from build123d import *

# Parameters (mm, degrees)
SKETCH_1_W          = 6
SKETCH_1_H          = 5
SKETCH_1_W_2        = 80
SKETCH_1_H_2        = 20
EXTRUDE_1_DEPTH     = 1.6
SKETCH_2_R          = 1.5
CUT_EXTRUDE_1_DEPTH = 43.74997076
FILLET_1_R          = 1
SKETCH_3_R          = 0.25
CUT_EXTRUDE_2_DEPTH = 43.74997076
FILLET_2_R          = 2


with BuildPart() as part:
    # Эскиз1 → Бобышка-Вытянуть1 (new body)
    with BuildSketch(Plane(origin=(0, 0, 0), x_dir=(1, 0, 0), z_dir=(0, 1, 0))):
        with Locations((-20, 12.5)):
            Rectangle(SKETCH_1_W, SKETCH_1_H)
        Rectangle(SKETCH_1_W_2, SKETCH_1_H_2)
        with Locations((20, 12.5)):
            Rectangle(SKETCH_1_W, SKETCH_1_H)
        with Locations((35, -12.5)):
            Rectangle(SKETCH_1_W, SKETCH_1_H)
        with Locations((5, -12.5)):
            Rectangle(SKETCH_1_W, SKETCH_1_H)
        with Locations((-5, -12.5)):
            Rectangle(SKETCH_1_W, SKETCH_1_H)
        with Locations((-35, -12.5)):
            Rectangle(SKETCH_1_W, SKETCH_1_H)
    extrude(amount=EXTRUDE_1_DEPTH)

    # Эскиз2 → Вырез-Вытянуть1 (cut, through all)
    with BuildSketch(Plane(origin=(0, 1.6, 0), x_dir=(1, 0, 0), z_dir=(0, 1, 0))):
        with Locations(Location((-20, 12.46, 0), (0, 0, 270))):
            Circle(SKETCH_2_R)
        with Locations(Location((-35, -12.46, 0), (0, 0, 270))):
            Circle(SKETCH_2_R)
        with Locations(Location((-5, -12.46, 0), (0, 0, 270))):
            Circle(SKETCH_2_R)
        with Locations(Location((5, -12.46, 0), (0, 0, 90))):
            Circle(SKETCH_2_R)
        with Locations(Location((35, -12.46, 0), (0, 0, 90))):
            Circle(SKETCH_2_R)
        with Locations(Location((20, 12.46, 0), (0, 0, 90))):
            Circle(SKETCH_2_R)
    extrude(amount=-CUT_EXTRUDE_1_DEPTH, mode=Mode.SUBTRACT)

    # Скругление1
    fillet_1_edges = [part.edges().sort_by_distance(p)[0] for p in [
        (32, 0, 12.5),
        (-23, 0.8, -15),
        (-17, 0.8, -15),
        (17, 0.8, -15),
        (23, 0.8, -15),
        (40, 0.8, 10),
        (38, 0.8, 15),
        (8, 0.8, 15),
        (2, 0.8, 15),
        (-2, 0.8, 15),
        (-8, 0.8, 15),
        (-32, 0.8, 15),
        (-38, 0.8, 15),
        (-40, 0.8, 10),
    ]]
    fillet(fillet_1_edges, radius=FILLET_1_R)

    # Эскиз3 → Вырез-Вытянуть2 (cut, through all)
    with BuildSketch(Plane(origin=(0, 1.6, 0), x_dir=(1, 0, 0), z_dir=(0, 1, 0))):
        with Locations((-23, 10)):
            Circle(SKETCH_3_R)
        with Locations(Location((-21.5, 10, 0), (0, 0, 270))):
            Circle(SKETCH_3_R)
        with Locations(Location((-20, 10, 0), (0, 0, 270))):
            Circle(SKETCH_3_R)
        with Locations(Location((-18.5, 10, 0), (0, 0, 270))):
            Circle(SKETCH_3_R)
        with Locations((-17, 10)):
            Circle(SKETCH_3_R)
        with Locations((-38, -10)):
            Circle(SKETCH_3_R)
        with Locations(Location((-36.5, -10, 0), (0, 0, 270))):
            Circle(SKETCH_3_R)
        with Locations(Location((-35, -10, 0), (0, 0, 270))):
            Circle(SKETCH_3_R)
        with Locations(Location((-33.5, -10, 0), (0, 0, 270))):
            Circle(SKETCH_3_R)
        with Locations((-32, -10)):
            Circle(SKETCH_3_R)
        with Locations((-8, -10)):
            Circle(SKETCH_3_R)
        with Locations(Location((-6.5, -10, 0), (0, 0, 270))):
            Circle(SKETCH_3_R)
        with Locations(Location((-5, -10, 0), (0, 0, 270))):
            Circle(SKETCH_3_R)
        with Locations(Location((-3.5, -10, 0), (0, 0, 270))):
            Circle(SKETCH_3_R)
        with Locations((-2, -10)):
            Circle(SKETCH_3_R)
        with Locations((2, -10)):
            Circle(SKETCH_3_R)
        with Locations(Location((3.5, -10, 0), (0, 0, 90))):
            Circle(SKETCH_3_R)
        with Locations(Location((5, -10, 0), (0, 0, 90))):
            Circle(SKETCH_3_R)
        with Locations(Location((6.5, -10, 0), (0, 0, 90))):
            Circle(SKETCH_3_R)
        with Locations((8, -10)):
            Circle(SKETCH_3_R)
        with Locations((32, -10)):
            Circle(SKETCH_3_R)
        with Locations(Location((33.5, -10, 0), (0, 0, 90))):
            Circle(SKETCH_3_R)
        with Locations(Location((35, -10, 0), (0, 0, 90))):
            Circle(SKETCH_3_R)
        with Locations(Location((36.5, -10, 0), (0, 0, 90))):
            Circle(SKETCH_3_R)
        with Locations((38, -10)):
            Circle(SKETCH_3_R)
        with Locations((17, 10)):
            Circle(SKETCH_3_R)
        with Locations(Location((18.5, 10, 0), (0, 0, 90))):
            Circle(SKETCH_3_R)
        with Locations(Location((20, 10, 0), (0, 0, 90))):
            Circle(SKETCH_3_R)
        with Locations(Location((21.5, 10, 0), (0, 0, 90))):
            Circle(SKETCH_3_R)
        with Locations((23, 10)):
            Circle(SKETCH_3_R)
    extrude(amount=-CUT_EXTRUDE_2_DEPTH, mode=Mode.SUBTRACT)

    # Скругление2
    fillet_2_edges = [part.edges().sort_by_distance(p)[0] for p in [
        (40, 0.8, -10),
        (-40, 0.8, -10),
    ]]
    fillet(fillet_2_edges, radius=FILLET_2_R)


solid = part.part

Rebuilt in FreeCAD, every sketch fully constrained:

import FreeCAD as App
import Part
import Sketcher

V = App.Vector


def edges_at(feature, points):
    """Names of the edges that pass closest to the given points."""
    edges = feature.Shape.Edges
    near = lambda p: min(range(len(edges)), key=lambda i: edges[i].distToShape(Part.Vertex(*p))[0])
    return sorted({f"Edge{near(p) + 1}" for p in points})


def add_polygon(sketch, points):
    """Adds a closed chain of lines whose ends are joined by coincident constraints."""
    first, n = sketch.GeometryCount, len(points)
    for a, b in zip(points, points[1:] + points[:1]):
        sketch.addGeometry(Part.LineSegment(App.Vector(*a, 0), App.Vector(*b, 0)), False)
    for i in range(n):
        sketch.addConstraint(Sketcher.Constraint("Coincident", first + i, 2, first + (i + 1) % n, 1))

doc = App.newDocument("Part")
params = doc.addObject("Spreadsheet::Sheet", "Params")
for row, (alias, value) in enumerate([
    ("sketch1_width", "17 mm"),
    ("sketch1_width2", "2 mm"),
    ("sketch1_width3", "6 mm"),
    ("sketch1_width4", "24 mm"),
    ("sketch1_width5", "4 mm"),
    ("pad1_length", "1.6 mm"),
    ("sketch2_diameter", "3 mm"),
    ("fillet_radius", "1 mm"),
    ("sketch3_diameter", "0.5 mm"),
    ("fillet2_radius", "2 mm"),
], start=1):
    params.set(f"A{row}", alias)
    params.set(f"B{row}", "=" + value)
    params.setAlias(f"B{row}", alias)

body = doc.addObject("PartDesign::Body", "Body")

# Sketch on XZ plane
sketch1 = body.newObject("Sketcher::SketchObject", "Sketch")
sketch1.AttachmentSupport = (doc.getObject("XZ_Plane"), [""])
sketch1.MapMode = "FlatFace"
add_polygon(sketch1, [(-23, -15), (-23, -10), (-40, -10), (-40, 10), (-38, 10), (-38, 15), (-32, 15), (-32, 10), (-8, 10), (-8, 15), (-2, 15), (-2, 10), (2, 10), (2, 15), (8, 15), (8, 10), (32, 10), (32, 15), (38, 15), (38, 10), (40, 10), (40, -10), (23, -10), (23, -15), (17, -15), (17, -10), (-17, -10), (-17, -15)])  # lines 0-27
sketch1.addConstraint([
    Sketcher.Constraint("Vertical", 0),
    Sketcher.Constraint("Horizontal", 1),
    Sketcher.Constraint("Vertical", 2),
    Sketcher.Constraint("Horizontal", 3),
    Sketcher.Constraint("Vertical", 4),
    Sketcher.Constraint("Horizontal", 5),
    Sketcher.Constraint("Vertical", 6),
    Sketcher.Constraint("Horizontal", 7),
    Sketcher.Constraint("Vertical", 8),
    Sketcher.Constraint("Horizontal", 9),
    Sketcher.Constraint("Vertical", 10),
    Sketcher.Constraint("Horizontal", 11),
    Sketcher.Constraint("Vertical", 12),
    Sketcher.Constraint("Horizontal", 13),
    Sketcher.Constraint("Vertical", 14),
    Sketcher.Constraint("Horizontal", 15),
    Sketcher.Constraint("Vertical", 16),
    Sketcher.Constraint("Horizontal", 17),
    Sketcher.Constraint("Vertical", 18),
    Sketcher.Constraint("Horizontal", 19),
    Sketcher.Constraint("Vertical", 20),
    Sketcher.Constraint("Horizontal", 21),
    Sketcher.Constraint("Vertical", 22),
    Sketcher.Constraint("Horizontal", 23),
    Sketcher.Constraint("Vertical", 24),
    Sketcher.Constraint("Horizontal", 25),
    Sketcher.Constraint("Vertical", 26),
    Sketcher.Constraint("Horizontal", 27),
    Sketcher.Constraint("Symmetric", 1, 2, 19, 2, -1, 1),
    Sketcher.Constraint("Symmetric", 9, 2, 12, 2, -2),
    Sketcher.Constraint("Symmetric", 7, 2, 14, 2, -2),
    Sketcher.Constraint("Symmetric", 5, 2, 16, 2, -2),
    Sketcher.Constraint("Symmetric", 3, 2, 18, 2, -2),
    Sketcher.Constraint("Symmetric", 0, 2, 21, 2, -2),
    Sketcher.Constraint("Symmetric", 23, 2, 26, 2, -2),
    Sketcher.Constraint("Horizontal", 3, 2, 6, 2),
    Sketcher.Constraint("Horizontal", 5, 2, 8, 2),
    Sketcher.Constraint("Horizontal", 7, 2, 10, 2),
    Sketcher.Constraint("Horizontal", 21, 2, 24, 2),
    Sketcher.Constraint("Equal", 5, 9),
    Sketcher.Constraint("Equal", 17, 23),
    Sketcher.Constraint("Equal", 0, 4),
    Sketcher.Constraint("DistanceX", 1, 2, 1, 1, 17.0),
    Sketcher.Constraint("DistanceX", 3, 1, 3, 2, 2.0),
    Sketcher.Constraint("DistanceX", 5, 1, 5, 2, 6.0),
    Sketcher.Constraint("DistanceX", 7, 1, 7, 2, 24.0),
    Sketcher.Constraint("DistanceX", 11, 1, 11, 2, 4.0),
    Sketcher.Constraint("DistanceY", 0, 1, 0, 2, 5.0),
    Sketcher.Constraint("DistanceY", 2, 1, 2, 2, 20.0),
])
sketch1.setExpression("Constraints[70]", "Params.sketch1_width")
sketch1.setExpression("Constraints[71]", "Params.sketch1_width2")
sketch1.setExpression("Constraints[72]", "Params.sketch1_width3")
sketch1.setExpression("Constraints[73]", "Params.sketch1_width4")
sketch1.setExpression("Constraints[74]", "Params.sketch1_width5")
pad1 = body.newObject("PartDesign::Pad", "Pad")
pad1.Profile = sketch1
pad1.setExpression("Length", "Params.pad1_length")
pad1.Reversed = True

# Sketch on XZ plane
sketch2 = body.newObject("Sketcher::SketchObject", "Sketch001")
sketch2.AttachmentSupport = (doc.getObject("XZ_Plane"), [""])
sketch2.MapMode = "FlatFace"
sketch2.AttachmentOffset = App.Placement(V(0, 0, -1.6), App.Rotation())
sketch2.addGeometry([
    Part.Circle(V(-20, -12.5, 0), V(0, 0, 1), 1.5),  # 0
    Part.Circle(V(-35, 12.5, 0), V(0, 0, 1), 1.5),  # 1
    Part.Circle(V(-5, 12.5, 0), V(0, 0, 1), 1.5),  # 2
    Part.Circle(V(5, 12.5, 0), V(0, 0, 1), 1.5),  # 3
    Part.Circle(V(35, 12.5, 0), V(0, 0, 1), 1.5),  # 4
    Part.Circle(V(20, -12.5, 0), V(0, 0, 1), 1.5),  # 5
], False)
sketch2.addConstraint([
    Sketcher.Constraint("Equal", 0, 1),
    Sketcher.Constraint("Equal", 1, 2),
    Sketcher.Constraint("Equal", 2, 3),
    Sketcher.Constraint("Equal", 3, 4),
    Sketcher.Constraint("Equal", 4, 5),
    Sketcher.Constraint("Symmetric", 2, 3, 3, 3, -2),
    Sketcher.Constraint("Symmetric", 1, 3, 4, 3, -2),
    Sketcher.Constraint("Symmetric", 0, 3, 5, 3, -2),
    Sketcher.Constraint("Horizontal", 1, 3, 2, 3),
    Sketcher.Constraint("Diameter", 0, 3.0),
    Sketcher.Constraint("DistanceX", 0, 3, -1, 1, 20.0),
    Sketcher.Constraint("DistanceX", 1, 3, -1, 1, 35.0),
    Sketcher.Constraint("DistanceX", 2, 3, -1, 1, 5.0),
    Sketcher.Constraint("DistanceY", 0, 3, -1, 1, 12.46),
    Sketcher.Constraint("DistanceY", -1, 1, 1, 3, 12.46),
])
sketch2.setExpression("Constraints[9]", "Params.sketch2_diameter")
pocket1 = body.newObject("PartDesign::Pocket", "Pocket")
pocket1.Profile = sketch2
pocket1.Type = "ThroughAll"
pocket1.Reversed = True
doc.recompute()

fillet = body.newObject("PartDesign::Fillet", "Fillet")
fillet.Base = (pocket1, edges_at(pocket1, [
    (32, 0, 12.5),
    (-23, 0.8, -15),
    (-17, 0.8, -15),
    (17, 0.8, -15),
    (23, 0.8, -15),
    (40, 0.8, 10),
    (38, 0.8, 15),
    (8, 0.8, 15),
    (2, 0.8, 15),
    (-2, 0.8, 15),
    (-8, 0.8, 15),
    (-32, 0.8, 15),
    (-38, 0.8, 15),
    (-40, 0.8, 10),
]))
fillet.setExpression("Radius", "Params.fillet_radius")

# Sketch on XZ plane
sketch3 = body.newObject("Sketcher::SketchObject", "Sketch002")
sketch3.AttachmentSupport = (doc.getObject("XZ_Plane"), [""])
sketch3.MapMode = "FlatFace"
sketch3.AttachmentOffset = App.Placement(V(0, 0, -1.6), App.Rotation())
sketch3.addGeometry([
    Part.Circle(V(-23, -10, 0), V(0, 0, 1), 0.25),  # 0
    Part.Circle(V(-21.5, -10, 0), V(0, 0, 1), 0.25),  # 1
    Part.Circle(V(-20, -10, 0), V(0, 0, 1), 0.25),  # 2
    Part.Circle(V(-18.5, -10, 0), V(0, 0, 1), 0.25),  # 3
    Part.Circle(V(-17, -10, 0), V(0, 0, 1), 0.25),  # 4
    Part.Circle(V(-38, 10, 0), V(0, 0, 1), 0.25),  # 5
    Part.Circle(V(-36.5, 10, 0), V(0, 0, 1), 0.25),  # 6
    Part.Circle(V(-35, 10, 0), V(0, 0, 1), 0.25),  # 7
    Part.Circle(V(-33.5, 10, 0), V(0, 0, 1), 0.25),  # 8
    Part.Circle(V(-32, 10, 0), V(0, 0, 1), 0.25),  # 9
    Part.Circle(V(-8, 10, 0), V(0, 0, 1), 0.25),  # 10
    Part.Circle(V(-6.5, 10, 0), V(0, 0, 1), 0.25),  # 11
    Part.Circle(V(-5, 10, 0), V(0, 0, 1), 0.25),  # 12
    Part.Circle(V(-3.5, 10, 0), V(0, 0, 1), 0.25),  # 13
    Part.Circle(V(-2, 10, 0), V(0, 0, 1), 0.25),  # 14
    Part.Circle(V(2, 10, 0), V(0, 0, 1), 0.25),  # 15
    Part.Circle(V(3.5, 10, 0), V(0, 0, 1), 0.25),  # 16
    Part.Circle(V(5, 10, 0), V(0, 0, 1), 0.25),  # 17
    Part.Circle(V(6.5, 10, 0), V(0, 0, 1), 0.25),  # 18
    Part.Circle(V(8, 10, 0), V(0, 0, 1), 0.25),  # 19
    Part.Circle(V(32, 10, 0), V(0, 0, 1), 0.25),  # 20
    Part.Circle(V(33.5, 10, 0), V(0, 0, 1), 0.25),  # 21
    Part.Circle(V(35, 10, 0), V(0, 0, 1), 0.25),  # 22
    Part.Circle(V(36.5, 10, 0), V(0, 0, 1), 0.25),  # 23
    Part.Circle(V(38, 10, 0), V(0, 0, 1), 0.25),  # 24
    Part.Circle(V(17, -10, 0), V(0, 0, 1), 0.25),  # 25
    Part.Circle(V(18.5, -10, 0), V(0, 0, 1), 0.25),  # 26
    Part.Circle(V(20, -10, 0), V(0, 0, 1), 0.25),  # 27
    Part.Circle(V(21.5, -10, 0), V(0, 0, 1), 0.25),  # 28
    Part.Circle(V(23, -10, 0), V(0, 0, 1), 0.25),  # 29
], False)
sketch3.addConstraint([
    Sketcher.Constraint("Equal", 0, 1),
    Sketcher.Constraint("Equal", 1, 2),
    Sketcher.Constraint("Equal", 2, 3),
    Sketcher.Constraint("Equal", 3, 4),
    Sketcher.Constraint("Equal", 4, 5),
    Sketcher.Constraint("Equal", 5, 6),
    Sketcher.Constraint("Equal", 6, 7),
    Sketcher.Constraint("Equal", 7, 8),
    Sketcher.Constraint("Equal", 8, 9),
    Sketcher.Constraint("Equal", 9, 10),
    Sketcher.Constraint("Equal", 10, 11),
    Sketcher.Constraint("Equal", 11, 12),
    Sketcher.Constraint("Equal", 12, 13),
    Sketcher.Constraint("Equal", 13, 14),
    Sketcher.Constraint("Equal", 14, 15),
    Sketcher.Constraint("Equal", 15, 16),
    Sketcher.Constraint("Equal", 16, 17),
    Sketcher.Constraint("Equal", 17, 18),
    Sketcher.Constraint("Equal", 18, 19),
    Sketcher.Constraint("Equal", 19, 20),
    Sketcher.Constraint("Equal", 20, 21),
    Sketcher.Constraint("Equal", 21, 22),
    Sketcher.Constraint("Equal", 22, 23),
    Sketcher.Constraint("Equal", 23, 24),
    Sketcher.Constraint("Equal", 24, 25),
    Sketcher.Constraint("Equal", 25, 26),
    Sketcher.Constraint("Equal", 26, 27),
    Sketcher.Constraint("Equal", 27, 28),
    Sketcher.Constraint("Equal", 28, 29),
    Sketcher.Constraint("Symmetric", 14, 3, 15, 3, -2),
    Sketcher.Constraint("Symmetric", 13, 3, 16, 3, -2),
    Sketcher.Constraint("Symmetric", 12, 3, 17, 3, -2),
    Sketcher.Constraint("Symmetric", 11, 3, 18, 3, -2),
    Sketcher.Constraint("Symmetric", 10, 3, 19, 3, -2),
    Sketcher.Constraint("Symmetric", 9, 3, 20, 3, -2),
    Sketcher.Constraint("Symmetric", 8, 3, 21, 3, -2),
    Sketcher.Constraint("Symmetric", 7, 3, 22, 3, -2),
    Sketcher.Constraint("Symmetric", 6, 3, 23, 3, -2),
    Sketcher.Constraint("Symmetric", 5, 3, 24, 3, -2),
    Sketcher.Constraint("Symmetric", 4, 3, 25, 3, -2),
    Sketcher.Constraint("Symmetric", 3, 3, 26, 3, -2),
    Sketcher.Constraint("Symmetric", 2, 3, 27, 3, -2),
    Sketcher.Constraint("Symmetric", 1, 3, 28, 3, -2),
    Sketcher.Constraint("Symmetric", 0, 3, 29, 3, -2),
    Sketcher.Constraint("Horizontal", 0, 3, 1, 3),
    Sketcher.Constraint("Horizontal", 1, 3, 2, 3),
    Sketcher.Constraint("Horizontal", 2, 3, 3, 3),
    Sketcher.Constraint("Horizontal", 3, 3, 4, 3),
    Sketcher.Constraint("Horizontal", 5, 3, 6, 3),
    Sketcher.Constraint("Horizontal", 6, 3, 7, 3),
    Sketcher.Constraint("Horizontal", 7, 3, 8, 3),
    Sketcher.Constraint("Horizontal", 8, 3, 9, 3),
    Sketcher.Constraint("Horizontal", 9, 3, 10, 3),
    Sketcher.Constraint("Horizontal", 10, 3, 11, 3),
    Sketcher.Constraint("Horizontal", 11, 3, 12, 3),
    Sketcher.Constraint("Horizontal", 12, 3, 13, 3),
    Sketcher.Constraint("Horizontal", 13, 3, 14, 3),
    Sketcher.Constraint("Diameter", 0, 0.5),
    Sketcher.Constraint("DistanceX", 0, 3, -1, 1, 23.0),
    Sketcher.Constraint("DistanceY", 0, 3, -1, 1, 10.0),
    Sketcher.Constraint("DistanceX", 2, 3, -1, 1, 20.0),
    Sketcher.Constraint("DistanceX", 4, 3, -1, 1, 17.0),
    Sketcher.Constraint("DistanceX", 5, 3, -1, 1, 38.0),
    Sketcher.Constraint("DistanceY", -1, 1, 5, 3, 10.0),
    Sketcher.Constraint("DistanceX", 7, 3, -1, 1, 35.0),
    Sketcher.Constraint("DistanceX", 9, 3, -1, 1, 32.0),
    Sketcher.Constraint("DistanceX", 10, 3, -1, 1, 8.0),
    Sketcher.Constraint("DistanceX", 12, 3, -1, 1, 5.0),
    Sketcher.Constraint("DistanceX", 14, 3, -1, 1, 2.0),
    Sketcher.Constraint("DistanceX", 1, 3, 3, 3, 3.0),
    Sketcher.Constraint("DistanceX", 6, 3, 1, 3, 15.0),
    Sketcher.Constraint("DistanceX", 6, 3, 8, 3, 3.0),
    Sketcher.Constraint("DistanceX", 3, 3, 11, 3, 12.0),
    Sketcher.Constraint("DistanceX", 11, 3, 13, 3, 3.0),
    Sketcher.Constraint("DistanceX", 13, 3, 16, 3, 7.0),
])
sketch3.setExpression("Constraints[57]", "Params.sketch3_diameter")
pocket2 = body.newObject("PartDesign::Pocket", "Pocket001")
pocket2.Profile = sketch3
pocket2.Type = "ThroughAll"
pocket2.Reversed = True
doc.recompute()

fillet2 = body.newObject("PartDesign::Fillet", "Fillet001")
fillet2.Base = (pocket2, edges_at(pocket2, [(40, 0.8, -10), (-40, 0.8, -10)]))
fillet2.setExpression("Radius", "Params.fillet2_radius")

doc.recompute()
